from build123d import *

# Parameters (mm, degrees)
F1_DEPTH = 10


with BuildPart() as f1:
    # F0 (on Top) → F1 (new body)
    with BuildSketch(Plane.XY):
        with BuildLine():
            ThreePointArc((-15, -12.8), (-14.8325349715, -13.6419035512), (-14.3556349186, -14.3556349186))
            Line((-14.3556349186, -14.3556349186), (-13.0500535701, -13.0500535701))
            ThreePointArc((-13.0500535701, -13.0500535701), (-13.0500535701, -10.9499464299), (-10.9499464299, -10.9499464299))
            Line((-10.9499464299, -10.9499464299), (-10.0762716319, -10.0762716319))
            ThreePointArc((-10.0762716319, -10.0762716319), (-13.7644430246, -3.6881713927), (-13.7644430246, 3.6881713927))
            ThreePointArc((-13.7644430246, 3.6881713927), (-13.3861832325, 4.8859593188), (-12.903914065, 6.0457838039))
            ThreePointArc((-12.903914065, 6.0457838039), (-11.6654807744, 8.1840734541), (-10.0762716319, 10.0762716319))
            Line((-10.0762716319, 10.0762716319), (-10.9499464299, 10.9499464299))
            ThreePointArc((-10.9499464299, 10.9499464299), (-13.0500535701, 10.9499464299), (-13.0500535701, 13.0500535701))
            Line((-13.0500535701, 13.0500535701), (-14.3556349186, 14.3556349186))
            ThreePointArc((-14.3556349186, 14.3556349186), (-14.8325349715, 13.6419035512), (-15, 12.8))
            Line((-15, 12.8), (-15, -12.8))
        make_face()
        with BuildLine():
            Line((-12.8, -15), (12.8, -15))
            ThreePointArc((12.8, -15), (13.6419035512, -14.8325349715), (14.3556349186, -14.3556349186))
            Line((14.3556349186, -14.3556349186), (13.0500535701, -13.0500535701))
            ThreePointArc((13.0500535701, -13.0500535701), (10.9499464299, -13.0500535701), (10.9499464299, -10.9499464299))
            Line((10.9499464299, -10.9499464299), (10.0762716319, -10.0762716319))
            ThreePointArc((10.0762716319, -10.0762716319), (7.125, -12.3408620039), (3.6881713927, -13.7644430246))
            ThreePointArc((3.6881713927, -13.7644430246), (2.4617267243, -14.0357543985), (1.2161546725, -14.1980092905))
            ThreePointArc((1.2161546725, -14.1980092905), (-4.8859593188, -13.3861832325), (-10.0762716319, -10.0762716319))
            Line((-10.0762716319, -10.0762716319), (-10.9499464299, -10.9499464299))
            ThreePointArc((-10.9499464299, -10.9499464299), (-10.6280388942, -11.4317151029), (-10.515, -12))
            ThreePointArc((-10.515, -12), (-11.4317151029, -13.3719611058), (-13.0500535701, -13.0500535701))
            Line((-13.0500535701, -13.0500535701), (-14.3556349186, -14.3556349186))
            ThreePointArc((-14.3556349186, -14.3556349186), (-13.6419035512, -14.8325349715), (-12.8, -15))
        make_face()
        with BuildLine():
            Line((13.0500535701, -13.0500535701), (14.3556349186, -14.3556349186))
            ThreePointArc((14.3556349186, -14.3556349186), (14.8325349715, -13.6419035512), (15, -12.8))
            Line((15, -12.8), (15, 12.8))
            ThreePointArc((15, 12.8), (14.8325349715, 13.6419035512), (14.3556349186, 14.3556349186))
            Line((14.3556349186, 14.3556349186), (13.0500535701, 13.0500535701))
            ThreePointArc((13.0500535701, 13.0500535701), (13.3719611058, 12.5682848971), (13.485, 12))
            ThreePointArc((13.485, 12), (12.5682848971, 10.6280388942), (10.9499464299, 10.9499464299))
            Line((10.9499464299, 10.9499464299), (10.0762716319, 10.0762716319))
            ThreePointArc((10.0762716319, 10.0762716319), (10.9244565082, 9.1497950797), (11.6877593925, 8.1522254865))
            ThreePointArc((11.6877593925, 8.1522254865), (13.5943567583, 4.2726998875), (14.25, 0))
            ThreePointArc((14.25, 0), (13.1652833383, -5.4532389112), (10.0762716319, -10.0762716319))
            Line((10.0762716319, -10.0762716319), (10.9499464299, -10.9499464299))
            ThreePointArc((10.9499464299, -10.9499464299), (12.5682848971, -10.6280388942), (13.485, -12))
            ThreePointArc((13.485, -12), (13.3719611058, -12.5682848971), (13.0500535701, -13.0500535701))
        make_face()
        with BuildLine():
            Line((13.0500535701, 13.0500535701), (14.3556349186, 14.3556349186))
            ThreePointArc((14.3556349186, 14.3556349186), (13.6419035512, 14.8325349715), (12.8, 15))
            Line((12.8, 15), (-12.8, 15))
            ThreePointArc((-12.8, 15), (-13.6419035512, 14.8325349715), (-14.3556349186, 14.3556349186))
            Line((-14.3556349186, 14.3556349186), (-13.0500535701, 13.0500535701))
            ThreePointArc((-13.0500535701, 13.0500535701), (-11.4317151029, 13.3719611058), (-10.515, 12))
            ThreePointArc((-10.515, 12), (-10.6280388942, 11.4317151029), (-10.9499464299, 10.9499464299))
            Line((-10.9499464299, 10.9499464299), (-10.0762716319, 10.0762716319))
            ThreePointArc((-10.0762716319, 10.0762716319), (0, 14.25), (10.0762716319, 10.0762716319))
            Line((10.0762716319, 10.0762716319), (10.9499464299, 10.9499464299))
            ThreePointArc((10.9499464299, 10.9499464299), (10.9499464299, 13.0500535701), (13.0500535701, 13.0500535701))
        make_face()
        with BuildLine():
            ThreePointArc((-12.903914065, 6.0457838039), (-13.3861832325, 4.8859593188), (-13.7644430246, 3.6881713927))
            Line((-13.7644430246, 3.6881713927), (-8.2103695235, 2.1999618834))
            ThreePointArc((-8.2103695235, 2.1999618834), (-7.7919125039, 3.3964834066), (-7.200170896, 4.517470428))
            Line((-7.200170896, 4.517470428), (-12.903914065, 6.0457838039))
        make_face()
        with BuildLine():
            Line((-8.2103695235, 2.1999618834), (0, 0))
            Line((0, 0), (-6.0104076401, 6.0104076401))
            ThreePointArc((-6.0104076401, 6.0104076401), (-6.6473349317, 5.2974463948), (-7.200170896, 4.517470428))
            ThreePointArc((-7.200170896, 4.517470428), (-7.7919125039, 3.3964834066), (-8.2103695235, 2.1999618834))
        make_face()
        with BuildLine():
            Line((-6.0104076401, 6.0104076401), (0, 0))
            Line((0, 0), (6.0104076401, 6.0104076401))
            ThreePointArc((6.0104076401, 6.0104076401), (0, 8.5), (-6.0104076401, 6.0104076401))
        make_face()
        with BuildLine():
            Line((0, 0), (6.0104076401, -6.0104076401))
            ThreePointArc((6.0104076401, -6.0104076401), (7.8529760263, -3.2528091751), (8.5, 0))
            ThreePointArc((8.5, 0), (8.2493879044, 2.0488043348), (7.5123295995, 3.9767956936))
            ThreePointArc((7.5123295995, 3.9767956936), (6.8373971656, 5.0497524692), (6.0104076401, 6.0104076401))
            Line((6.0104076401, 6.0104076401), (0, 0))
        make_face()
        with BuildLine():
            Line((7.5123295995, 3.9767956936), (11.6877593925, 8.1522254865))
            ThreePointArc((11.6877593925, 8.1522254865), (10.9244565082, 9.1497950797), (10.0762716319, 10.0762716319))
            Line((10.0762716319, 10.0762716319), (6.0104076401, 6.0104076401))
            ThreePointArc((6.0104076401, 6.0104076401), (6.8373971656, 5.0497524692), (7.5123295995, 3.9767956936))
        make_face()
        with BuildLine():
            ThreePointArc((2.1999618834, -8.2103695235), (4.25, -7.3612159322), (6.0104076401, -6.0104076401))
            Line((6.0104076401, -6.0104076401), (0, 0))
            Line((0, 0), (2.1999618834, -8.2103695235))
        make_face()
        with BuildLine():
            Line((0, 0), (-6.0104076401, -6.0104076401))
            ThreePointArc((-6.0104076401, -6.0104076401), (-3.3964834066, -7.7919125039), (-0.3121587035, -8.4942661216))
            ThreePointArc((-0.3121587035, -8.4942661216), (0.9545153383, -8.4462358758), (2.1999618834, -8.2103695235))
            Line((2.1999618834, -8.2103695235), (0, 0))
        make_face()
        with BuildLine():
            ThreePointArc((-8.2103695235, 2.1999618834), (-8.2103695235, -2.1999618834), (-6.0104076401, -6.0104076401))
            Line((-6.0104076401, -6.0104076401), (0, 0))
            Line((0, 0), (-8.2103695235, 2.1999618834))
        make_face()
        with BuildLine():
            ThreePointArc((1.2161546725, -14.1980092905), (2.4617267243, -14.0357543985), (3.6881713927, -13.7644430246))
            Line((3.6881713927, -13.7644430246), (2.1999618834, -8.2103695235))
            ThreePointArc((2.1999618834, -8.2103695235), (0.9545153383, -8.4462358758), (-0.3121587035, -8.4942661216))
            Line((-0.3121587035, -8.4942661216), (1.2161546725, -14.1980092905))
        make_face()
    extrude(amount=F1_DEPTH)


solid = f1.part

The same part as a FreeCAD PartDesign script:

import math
import FreeCAD as App
import Part
import Sketcher

V = App.Vector
Q = App.Units.Quantity

doc = App.newDocument("Part")
params = doc.addObject("Spreadsheet::Sheet", "Params")
for row, (alias, value) in enumerate([
    ("sketch1_radius", "2.2 mm"),
    ("sketch1_radius2", "8.5 mm"),
    ("sketch1_radius3", "14.25 mm"),
    ("sketch1_width", "25.6 mm"),
    ("pad1_length", "10 mm"),
], start=1):
    params.set(f"A{row}", alias)
    params.set(f"B{row}", "=" + value)
    params.setAlias(f"B{row}", alias)

body = doc.addObject("PartDesign::Body", "Body")

# Sketch on XY plane
sketch1 = body.newObject("Sketcher::SketchObject", "Sketch")
sketch1.AttachmentSupport = (doc.getObject("XY_Plane"), [""])
sketch1.MapMode = "FlatFace"
sketch1.addGeometry(Part.ArcOfCircle(Part.Circle(V(-12.8, -12.8, 0), V(0, 0, 1), 2.2), math.radians(180), math.radians(225)), False)
sketch1.addGeometry(Part.ArcOfCircle(Part.Circle(V(-12.8, -12.8, 0), V(0, 0, 1), 2.2), math.radians(-135), math.radians(-90)), False)
sketch1.addGeometry(Part.LineSegment(V(-12.8, -15, 0), V(12.8, -15, 0)), False)
sketch1.addGeometry(Part.ArcOfCircle(Part.Circle(V(12.8, -12.8, 0), V(0, 0, 1), 2.2), math.radians(-90), math.radians(-45)), False)
sketch1.addGeometry(Part.ArcOfCircle(Part.Circle(V(12.8, -12.8, 0), V(0, 0, 1), 2.2), math.radians(-45), math.radians(0)), False)
sketch1.addGeometry(Part.LineSegment(V(15, -12.8, 0), V(15, 12.8, 0)), False)
sketch1.addGeometry(Part.ArcOfCircle(Part.Circle(V(12.8, 12.8, 0), V(0, 0, 1), 2.2), math.radians(0), math.radians(45)), False)
sketch1.addGeometry(Part.ArcOfCircle(Part.Circle(V(12.8, 12.8, 0), V(0, 0, 1), 2.2), math.radians(45), math.radians(90)), False)
sketch1.addGeometry(Part.LineSegment(V(12.8, 15, 0), V(-12.8, 15, 0)), False)
sketch1.addGeometry(Part.ArcOfCircle(Part.Circle(V(-12.8, 12.8, 0), V(0, 0, 1), 2.2), math.radians(90), math.radians(135)), False)
sketch1.addGeometry(Part.ArcOfCircle(Part.Circle(V(-12.8, 12.8, 0), V(0, 0, 1), 2.2), math.radians(135), math.radians(180)), False)
sketch1.addGeometry(Part.LineSegment(V(-15, 12.8, 0), V(-15, -12.8, 0)), False)
sketch1.addGeometry(Part.ArcOfCircle(Part.Circle(V(12, 12, 0), V(0, 0, 1), 1.485), math.radians(0), math.radians(45)), False)
sketch1.addGeometry(Part.ArcOfCircle(Part.Circle(V(12, 12, 0), V(0, 0, 1), 1.485), math.radians(45), math.radians(360)), False)
sketch1.addGeometry(Part.ArcOfCircle(Part.Circle(V(0, 0, 0), V(0, 0, 1), 14.25), math.radians(0), math.radians(34.895817)), False)
sketch1.addGeometry(Part.ArcOfCircle(Part.Circle(V(0, 0, 0), V(0, 0, 1), 14.25), math.radians(-45), math.radians(0)), False)
sketch1.addGeometry(Part.ArcOfCircle(Part.Circle(V(0, 0, 0), V(0, 0, 1), 14.25), math.radians(-75), math.radians(-45)), False)
sketch1.addGeometry(Part.LineSegment(V(3.688171, -13.764443, 0), V(2.199962, -8.21037, 0)), False)
sketch1.addGeometry(Part.ArcOfCircle(Part.Circle(V(0, 0, 0), V(0, 0, 1), 8.5), math.radians(-75), math.radians(-45)), False)
sketch1.addGeometry(Part.ArcOfCircle(Part.Circle(V(0, 0, 0), V(0, 0, 1), 8.5), math.radians(-45), math.radians(0)), False)
sketch1.addGeometry(Part.ArcOfCircle(Part.Circle(V(0, 0, 0), V(0, 0, 1), 8.5), math.radians(0), math.radians(27.895365)), False)
sketch1.addGeometry(Part.LineSegment(V(7.51233, 3.976796, 0), V(11.687759, 8.152225, 0)), False)
sketch1.addGeometry(Part.ArcOfCircle(Part.Circle(V(0, 0, 0), V(0, 0, 1), 14.25), math.radians(-135), math.radians(-85.104183)), False)
sketch1.addGeometry(Part.ArcOfCircle(Part.Circle(V(0, 0, 0), V(0, 0, 1), 14.25), math.radians(165), math.radians(225)), False)
sketch1.addGeometry(Part.LineSegment(V(-13.764443, 3.688171, 0), V(-8.21037, 2.199962, 0)), False)
sketch1.addGeometry(Part.ArcOfCircle(Part.Circle(V(0, 0, 0), V(0, 0, 1), 8.5), math.radians(165), math.radians(225)), False)
sketch1.addGeometry(Part.ArcOfCircle(Part.Circle(V(0, 0, 0), V(0, 0, 1), 8.5), math.radians(-135), math.radians(-92.104635)), False)
sketch1.addGeometry(Part.LineSegment(V(-0.312159, -8.494266, 0), V(1.216155, -14.198009, 0)), False)
sketch1.addGeometry(Part.ArcOfCircle(Part.Circle(V(0, 0, 0), V(0, 0, 1), 8.5), math.radians(45), math.radians(135)), False)
sketch1.addGeometry(Part.ArcOfCircle(Part.Circle(V(0, 0, 0), V(0, 0, 1), 8.5), math.radians(135), math.radians(147.895365)), False)
sketch1.addGeometry(Part.LineSegment(V(-7.200171, 4.51747, 0), V(-12.903914, 6.045784, 0)), False)
sketch1.addGeometry(Part.ArcOfCircle(Part.Circle(V(0, 0, 0), V(0, 0, 1), 14.25), math.radians(135), math.radians(154.895817)), False)
sketch1.addGeometry(Part.ArcOfCircle(Part.Circle(V(0, 0, 0), V(0, 0, 1), 14.25), math.radians(45), math.radians(135)), False)
sketch1.addGeometry(Part.LineSegment(V(10.076272, 10.076272, 0), V(6.010408, 6.010408, 0)), False)
sketch1.addGeometry(Part.ArcOfCircle(Part.Circle(V(-12, 12, 0), V(0, 0, 1), 1.485), math.radians(0), math.radians(315)), False)
sketch1.addGeometry(Part.ArcOfCircle(Part.Circle(V(-12, 12, 0), V(0, 0, 1), 1.485), math.radians(-45), math.radians(0)), False)
sketch1.addGeometry(Part.ArcOfCircle(Part.Circle(V(12, -12, 0), V(0, 0, 1), 1.485), math.radians(0), math.radians(315)), False)
sketch1.addGeometry(Part.ArcOfCircle(Part.Circle(V(12, -12, 0), V(0, 0, 1), 1.485), math.radians(-45), math.radians(0)), False)
sketch1.addGeometry(Part.ArcOfCircle(Part.Circle(V(-12, -12, 0), V(0, 0, 1), 1.485), math.radians(0), math.radians(45)), False)
sketch1.addGeometry(Part.ArcOfCircle(Part.Circle(V(-12, -12, 0), V(0, 0, 1), 1.485), math.radians(45), math.radians(360)), False)
sketch1.addConstraint(Sketcher.Constraint("Tangent", 0, 2, 1, 1))
sketch1.addConstraint(Sketcher.Constraint("Tangent", 1, 2, 2, 1))
sketch1.addConstraint(Sketcher.Constraint("Tangent", 2, 2, 3, 1))
sketch1.addConstraint(Sketcher.Constraint("Tangent", 3, 2, 4, 1))
sketch1.addConstraint(Sketcher.Constraint("Tangent", 4, 2, 5, 1))
sketch1.addConstraint(Sketcher.Constraint("Tangent", 5, 2, 6, 1))
sketch1.addConstraint(Sketcher.Constraint("Tangent", 6, 2, 7, 1))
sketch1.addConstraint(Sketcher.Constraint("Tangent", 7, 2, 8, 1))
sketch1.addConstraint(Sketcher.Constraint("Tangent", 8, 2, 9, 1))
sketch1.addConstraint(Sketcher.Constraint("Tangent", 9, 2, 10, 1))
sketch1.addConstraint(Sketcher.Constraint("Tangent", 10, 2, 11, 1))
sketch1.addConstraint(Sketcher.Constraint("Tangent", 11, 2, 0, 1))
sketch1.addConstraint(Sketcher.Constraint("Tangent", 12, 1, 13, 2))
sketch1.addConstraint(Sketcher.Constraint("Coincident", 13, 1, 12, 2))
sketch1.addConstraint(Sketcher.Constraint("Tangent", 14, 1, 15, 2))
sketch1.addConstraint(Sketcher.Constraint("Tangent", 15, 1, 16, 2))
sketch1.addConstraint(Sketcher.Constraint("Coincident", 16, 1, 17, 1))
sketch1.addConstraint(Sketcher.Constraint("Coincident", 17, 2, 18, 1))
sketch1.addConstraint(Sketcher.Constraint("Tangent", 18, 2, 19, 1))
sketch1.addConstraint(Sketcher.Constraint("Tangent", 19, 2, 20, 1))
sketch1.addConstraint(Sketcher.Constraint("Coincident", 20, 2, 21, 1))
sketch1.addConstraint(Sketcher.Constraint("Coincident", 21, 2, 14, 2))
sketch1.addConstraint(Sketcher.Constraint("Tangent", 22, 1, 23, 2))
sketch1.addConstraint(Sketcher.Constraint("Coincident", 23, 1, 24, 1))
sketch1.addConstraint(Sketcher.Constraint("Coincident", 24, 2, 25, 1))
sketch1.addConstraint(Sketcher.Constraint("Tangent", 25, 2, 26, 1))
sketch1.addConstraint(Sketcher.Constraint("Coincident", 26, 2, 27, 1))
sketch1.addConstraint(Sketcher.Constraint("Coincident", 27, 2, 22, 2))
sketch1.addConstraint(Sketcher.Constraint("Tangent", 28, 2, 29, 1))
sketch1.addConstraint(Sketcher.Constraint("Coincident", 29, 2, 30, 1))
sketch1.addConstraint(Sketcher.Constraint("Coincident", 30, 2, 31, 2))
sketch1.addConstraint(Sketcher.Constraint("Tangent", 31, 1, 32, 2))
sketch1.addConstraint(Sketcher.Constraint("Coincident", 32, 1, 33, 1))
sketch1.addConstraint(Sketcher.Constraint("Coincident", 33, 2, 28, 1))
sketch1.addConstraint(Sketcher.Constraint("Tangent", 34, 1, 35, 2))
sketch1.addConstraint(Sketcher.Constraint("Coincident", 35, 1, 34, 2))
sketch1.addConstraint(Sketcher.Constraint("Tangent", 36, 1, 37, 2))
sketch1.addConstraint(Sketcher.Constraint("Coincident", 37, 1, 36, 2))
sketch1.addConstraint(Sketcher.Constraint("Tangent", 38, 1, 39, 2))
sketch1.addConstraint(Sketcher.Constraint("Coincident", 39, 1, 38, 2))
sketch1.addConstraint(Sketcher.Constraint("Horizontal", 2))
sketch1.addConstraint(Sketcher.Constraint("Vertical", 5))
sketch1.addConstraint(Sketcher.Constraint("Horizontal", 8))
sketch1.addConstraint(Sketcher.Constraint("Vertical", 11))
sketch1.addConstraint(Sketcher.Constraint("Coincident", 14, 3, -1, 1))
sketch1.addConstraint(Sketcher.Constraint("Coincident", 16, 3, -1, 1))
sketch1.addConstraint(Sketcher.Constraint("Coincident", 18, 3, -1, 1))
sketch1.addConstraint(Sketcher.Constraint("Coincident", 20, 3, -1, 1))
sketch1.addConstraint(Sketcher.Constraint("Coincident", 22, 3, -1, 1))
sketch1.addConstraint(Sketcher.Constraint("Coincident", 25, 3, -1, 1))
sketch1.addConstraint(Sketcher.Constraint("Coincident", 28, 3, -1, 1))
sketch1.addConstraint(Sketcher.Constraint("Coincident", 31, 3, -1, 1))
sketch1.addConstraint(Sketcher.Constraint("Equal", 0, 1))
sketch1.addConstraint(Sketcher.Constraint("Equal", 1, 3))
sketch1.addConstraint(Sketcher.Constraint("Equal", 3, 4))
sketch1.addConstraint(Sketcher.Constraint("Equal", 4, 6))
sketch1.addConstraint(Sketcher.Constraint("Equal", 6, 7))
sketch1.addConstraint(Sketcher.Constraint("Equal", 7, 9))
sketch1.addConstraint(Sketcher.Constraint("Equal", 9, 10))
sketch1.addConstraint(Sketcher.Constraint("Equal", 16, 22))
sketch1.addConstraint(Sketcher.Constraint("Equal", 22, 23))
sketch1.addConstraint(Sketcher.Constraint("Equal", 20, 25))
sketch1.addConstraint(Sketcher.Constraint("Equal", 25, 26))
sketch1.addConstraint(Sketcher.Constraint("Equal", 26, 28))
sketch1.addConstraint(Sketcher.Constraint("Equal", 28, 29))
sketch1.addConstraint(Sketcher.Constraint("Equal", 23, 31))
sketch1.addConstraint(Sketcher.Constraint("Equal", 31, 32))
sketch1.addConstraint(Sketcher.Constraint("Equal", 13, 34))
sketch1.addConstraint(Sketcher.Constraint("Equal", 35, 36))
sketch1.addConstraint(Sketcher.Constraint("Equal", 37, 38))
sketch1.addConstraint(Sketcher.Constraint("Symmetric", 0, 3, 6, 3, -1, 1))
sketch1.addConstraint(Sketcher.Constraint("Symmetric", 34, 3, 36, 3, -1, 1))
sketch1.addConstraint(Sketcher.Constraint("Symmetric", 12, 3, 38, 3, -1, 1))
sketch1.addConstraint(Sketcher.Constraint("Symmetric", 12, 3, 34, 3, -2))
sketch1.addConstraint(Sketcher.Constraint("PointOnObject", 14, 1, -1))
sketch1.addConstraint(Sketcher.Constraint("PointOnObject", 19, 2, -1))
sketch1.addConstraint(Sketcher.Constraint("Parallel", 17, 27))
sketch1.addConstraint(Sketcher.Constraint("Parallel", 24, 30))
sketch1.addConstraint(Sketcher.Constraint("Parallel", 21, 33))
sketch1.addConstraint(Sketcher.Constraint("Horizontal", 0, 2, 3, 2))
sketch1.addConstraint(Sketcher.Constraint("Horizontal", 6, 2, 9, 2))
sketch1.addConstraint(Sketcher.Constraint("Horizontal", 35, 3, 12, 1))
sketch1.addConstraint(Sketcher.Constraint("Horizontal", 15, 1, 22, 1))
sketch1.addConstraint(Sketcher.Constraint("Horizontal", 18, 2, 25, 2))
sketch1.addConstraint(Sketcher.Constraint("Horizontal", 31, 1, 32, 1))
sketch1.addConstraint(Sketcher.Constraint("Horizontal", 28, 2, 33, 2))
sketch1.addConstraint(Sketcher.Constraint("Horizontal", 12, 1, 34, 1))
sketch1.addConstraint(Sketcher.Constraint("Horizontal", 39, 3, 36, 1))
sketch1.addConstraint(Sketcher.Constraint("Horizontal", 36, 1, 38, 1))
sketch1.addConstraint(Sketcher.Constraint("Vertical", 3, 2, 6, 2))
sketch1.addConstraint(Sketcher.Constraint("Vertical", 25, 2, 28, 2))
sketch1.addConstraint(Sketcher.Constraint("Vertical", 22, 1, 31, 1))
sketch1.addConstraint(Sketcher.Constraint("Vertical", 13, 1, 37, 1))
sketch1.addConstraint(Sketcher.Constraint("Vertical", 35, 1, 39, 1))
sketch1.addConstraint(Sketcher.Constraint("Equal", 8, 5))
sketch1.addConstraint(Sketcher.Constraint("Equal", 21, 27))
sketch1.addConstraint(Sketcher.Constraint("Equal", 27, 30))
sketch1.addConstraint(Sketcher.Constraint("Radius", 0, 2.2))
sketch1.addConstraint(Sketcher.Constraint("Radius", 18, 8.5))
sketch1.addConstraint(Sketcher.Constraint("Angle", 17, Q("105 deg")))
sketch1.addConstraint(Sketcher.Constraint("Angle", 21, Q("45 deg")))
sketch1.addConstraint(Sketcher.Constraint("Angle", 24, Q("-15 deg")))
sketch1.addConstraint(Sketcher.Constraint("Radius", 14, 14.25))
sketch1.addConstraint(Sketcher.Constraint("DistanceX", 2, 1, 2, 2, 25.6))
sketch1.addConstraint(Sketcher.Constraint("DistanceX", -1, 1, 12, 3, 12.0))
sketch1.addConstraint(Sketcher.Constraint("DistanceY", -1, 1, 12, 3, 12.0))
sketch1.addConstraint(Sketcher.Constraint("Radius", 12, 1.485))
sketch1.addConstraint(Sketcher.Constraint("Distance", 21, 5.904949))
sketch1.addConstraint(Sketcher.Constraint("DistanceX", -1, 1, 15, 1, 10.076272))
sketch1.addConstraint(Sketcher.Constraint("DistanceX", -1, 1, 16, 1, 3.688171))
sketch1.addConstraint(Sketcher.Constraint("DistanceY", -1, 1, 23, 1, 3.688171))
sketch1.addConstraint(Sketcher.Constraint("DistanceX", 0, 2, -1, 1, 14.355635))
sketch1.addConstraint(Sketcher.Constraint("DistanceX", -1, 1, 13, 1, 13.050054))
sketch1.addConstraint(Sketcher.Constraint("DistanceX", 35, 1, -1, 1, 10.949946))
sketch1.setExpression("Constraints[97]", "Params.sketch1_radius")
sketch1.setExpression("Constraints[98]", "Params.sketch1_radius2")
sketch1.setExpression("Constraints[102]", "Params.sketch1_radius3")
sketch1.setExpression("Constraints[103]", "Params.sketch1_width")
pad1 = body.newObject("PartDesign::Pad", "Pad")
pad1.Profile = sketch1
pad1.setExpression("Length", "Params.pad1_length")

doc.recompute()
